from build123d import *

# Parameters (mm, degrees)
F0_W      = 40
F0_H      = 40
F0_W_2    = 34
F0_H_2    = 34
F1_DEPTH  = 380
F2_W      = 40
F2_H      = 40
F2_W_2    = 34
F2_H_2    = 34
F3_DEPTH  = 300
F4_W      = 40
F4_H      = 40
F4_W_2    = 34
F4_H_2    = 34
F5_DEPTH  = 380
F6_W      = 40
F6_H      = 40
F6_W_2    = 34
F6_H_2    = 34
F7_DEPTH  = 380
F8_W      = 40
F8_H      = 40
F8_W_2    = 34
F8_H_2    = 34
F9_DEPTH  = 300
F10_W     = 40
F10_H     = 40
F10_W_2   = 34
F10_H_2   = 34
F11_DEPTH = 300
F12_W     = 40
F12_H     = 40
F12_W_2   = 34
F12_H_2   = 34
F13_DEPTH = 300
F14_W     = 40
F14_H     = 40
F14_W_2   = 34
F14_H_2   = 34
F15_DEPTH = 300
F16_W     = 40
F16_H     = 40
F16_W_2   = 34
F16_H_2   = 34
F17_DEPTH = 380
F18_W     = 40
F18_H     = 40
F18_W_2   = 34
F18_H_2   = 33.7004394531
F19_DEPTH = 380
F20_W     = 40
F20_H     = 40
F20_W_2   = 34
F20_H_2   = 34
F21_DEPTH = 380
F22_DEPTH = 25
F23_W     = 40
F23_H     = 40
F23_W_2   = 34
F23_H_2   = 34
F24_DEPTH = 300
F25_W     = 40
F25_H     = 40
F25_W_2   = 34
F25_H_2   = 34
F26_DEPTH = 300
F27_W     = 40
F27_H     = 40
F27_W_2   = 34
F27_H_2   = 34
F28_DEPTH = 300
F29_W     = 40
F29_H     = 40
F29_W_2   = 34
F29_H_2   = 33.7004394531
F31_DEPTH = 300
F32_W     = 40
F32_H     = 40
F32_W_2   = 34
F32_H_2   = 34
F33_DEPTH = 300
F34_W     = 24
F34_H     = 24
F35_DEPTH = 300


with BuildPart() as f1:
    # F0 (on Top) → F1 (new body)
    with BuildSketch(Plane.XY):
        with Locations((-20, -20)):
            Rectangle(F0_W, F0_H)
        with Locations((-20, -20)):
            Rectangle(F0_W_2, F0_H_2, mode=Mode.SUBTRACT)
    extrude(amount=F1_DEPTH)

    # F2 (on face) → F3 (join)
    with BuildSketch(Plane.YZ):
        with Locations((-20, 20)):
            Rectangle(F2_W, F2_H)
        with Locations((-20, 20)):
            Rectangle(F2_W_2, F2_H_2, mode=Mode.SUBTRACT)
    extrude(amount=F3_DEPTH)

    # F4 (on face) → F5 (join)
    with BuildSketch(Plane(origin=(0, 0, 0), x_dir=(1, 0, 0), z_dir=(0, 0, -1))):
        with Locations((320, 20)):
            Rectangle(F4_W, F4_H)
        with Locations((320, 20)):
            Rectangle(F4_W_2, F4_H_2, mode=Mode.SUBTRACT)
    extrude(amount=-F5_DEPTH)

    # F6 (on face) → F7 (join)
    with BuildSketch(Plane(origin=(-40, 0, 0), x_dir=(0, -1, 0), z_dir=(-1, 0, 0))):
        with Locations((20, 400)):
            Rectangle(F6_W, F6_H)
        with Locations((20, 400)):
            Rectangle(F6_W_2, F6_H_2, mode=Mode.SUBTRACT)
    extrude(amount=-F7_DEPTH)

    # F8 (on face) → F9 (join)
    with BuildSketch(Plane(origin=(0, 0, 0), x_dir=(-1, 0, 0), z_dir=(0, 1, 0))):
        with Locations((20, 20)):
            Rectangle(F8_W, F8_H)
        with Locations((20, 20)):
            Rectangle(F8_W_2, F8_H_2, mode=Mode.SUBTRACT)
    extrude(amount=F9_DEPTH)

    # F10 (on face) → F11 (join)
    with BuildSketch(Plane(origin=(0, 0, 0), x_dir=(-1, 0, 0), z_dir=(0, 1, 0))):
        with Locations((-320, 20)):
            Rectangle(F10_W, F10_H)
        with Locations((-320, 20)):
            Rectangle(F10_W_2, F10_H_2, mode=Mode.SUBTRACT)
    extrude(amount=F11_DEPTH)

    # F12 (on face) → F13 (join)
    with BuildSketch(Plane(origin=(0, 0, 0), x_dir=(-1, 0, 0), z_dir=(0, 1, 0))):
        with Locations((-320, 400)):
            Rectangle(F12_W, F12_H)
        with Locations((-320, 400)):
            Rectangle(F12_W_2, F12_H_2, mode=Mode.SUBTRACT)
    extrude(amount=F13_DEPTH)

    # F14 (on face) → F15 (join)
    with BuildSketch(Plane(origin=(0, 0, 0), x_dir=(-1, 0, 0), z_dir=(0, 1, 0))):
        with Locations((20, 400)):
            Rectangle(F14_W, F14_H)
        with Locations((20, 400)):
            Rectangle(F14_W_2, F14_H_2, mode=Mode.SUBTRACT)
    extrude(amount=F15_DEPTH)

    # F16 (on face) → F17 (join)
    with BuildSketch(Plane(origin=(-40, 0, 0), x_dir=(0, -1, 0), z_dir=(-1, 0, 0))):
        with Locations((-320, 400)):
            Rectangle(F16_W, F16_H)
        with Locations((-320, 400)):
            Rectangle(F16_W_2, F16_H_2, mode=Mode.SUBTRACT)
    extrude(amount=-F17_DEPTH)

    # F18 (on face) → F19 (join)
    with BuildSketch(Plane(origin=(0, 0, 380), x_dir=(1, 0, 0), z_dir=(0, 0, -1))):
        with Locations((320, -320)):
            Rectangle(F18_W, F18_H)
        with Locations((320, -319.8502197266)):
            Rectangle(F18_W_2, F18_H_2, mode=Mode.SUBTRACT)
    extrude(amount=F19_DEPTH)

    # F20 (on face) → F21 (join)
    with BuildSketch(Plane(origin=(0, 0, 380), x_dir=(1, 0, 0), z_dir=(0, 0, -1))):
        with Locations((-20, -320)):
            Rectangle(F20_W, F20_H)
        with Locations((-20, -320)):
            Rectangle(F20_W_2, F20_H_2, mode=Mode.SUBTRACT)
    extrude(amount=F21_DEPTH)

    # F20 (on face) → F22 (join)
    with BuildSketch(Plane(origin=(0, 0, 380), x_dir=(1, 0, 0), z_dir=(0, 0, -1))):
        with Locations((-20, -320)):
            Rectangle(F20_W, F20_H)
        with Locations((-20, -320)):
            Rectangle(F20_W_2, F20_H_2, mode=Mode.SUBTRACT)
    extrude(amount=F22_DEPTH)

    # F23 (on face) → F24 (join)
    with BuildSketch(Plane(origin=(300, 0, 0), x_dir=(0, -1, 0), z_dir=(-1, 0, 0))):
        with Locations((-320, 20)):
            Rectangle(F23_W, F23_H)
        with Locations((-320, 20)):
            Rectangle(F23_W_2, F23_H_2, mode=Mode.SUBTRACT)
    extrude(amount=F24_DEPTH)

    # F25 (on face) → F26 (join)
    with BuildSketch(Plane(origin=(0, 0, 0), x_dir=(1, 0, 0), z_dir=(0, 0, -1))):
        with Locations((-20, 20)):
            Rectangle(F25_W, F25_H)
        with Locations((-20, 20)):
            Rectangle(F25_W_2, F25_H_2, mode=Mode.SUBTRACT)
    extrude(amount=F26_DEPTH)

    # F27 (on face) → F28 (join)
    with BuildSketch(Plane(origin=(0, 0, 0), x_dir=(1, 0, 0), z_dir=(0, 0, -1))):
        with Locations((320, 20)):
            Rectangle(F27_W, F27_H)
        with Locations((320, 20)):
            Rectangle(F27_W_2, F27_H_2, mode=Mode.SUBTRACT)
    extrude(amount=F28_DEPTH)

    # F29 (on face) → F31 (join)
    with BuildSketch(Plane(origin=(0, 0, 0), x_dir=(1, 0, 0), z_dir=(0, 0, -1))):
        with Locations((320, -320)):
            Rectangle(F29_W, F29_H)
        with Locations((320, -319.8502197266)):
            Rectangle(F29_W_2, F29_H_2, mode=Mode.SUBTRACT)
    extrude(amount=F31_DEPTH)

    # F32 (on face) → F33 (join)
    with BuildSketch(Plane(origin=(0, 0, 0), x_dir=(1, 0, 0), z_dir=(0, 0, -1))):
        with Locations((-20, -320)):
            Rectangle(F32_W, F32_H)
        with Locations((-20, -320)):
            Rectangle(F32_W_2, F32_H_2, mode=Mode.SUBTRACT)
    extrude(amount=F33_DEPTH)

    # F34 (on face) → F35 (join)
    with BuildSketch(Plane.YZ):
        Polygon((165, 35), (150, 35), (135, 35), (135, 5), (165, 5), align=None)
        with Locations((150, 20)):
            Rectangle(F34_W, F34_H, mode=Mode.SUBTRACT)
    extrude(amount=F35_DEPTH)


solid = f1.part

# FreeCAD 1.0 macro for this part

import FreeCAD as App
import Part
import Sketcher
from FreeCAD import Vector

doc = App.newDocument("Part")
body = doc.addObject("PartDesign::Body", "Body")

sketch1 = doc.addObject("Sketcher::SketchObject", "Sketch")
body.addObject(sketch1)
sketch1.AttachmentSupport = (doc.XY_Plane, [""])
sketch1.MapMode = "FlatFace"
sketch1.addGeometry(Part.LineSegment(Vector(-40, 0, 0), Vector(-40, -40, 0)), False)
sketch1.addGeometry(Part.LineSegment(Vector(-40, -40, 0), Vector(0, -40, 0)), False)
sketch1.addGeometry(Part.LineSegment(Vector(0, -40, 0), Vector(0, 0, 0)), False)
sketch1.addGeometry(Part.LineSegment(Vector(0, 0, 0), Vector(-40, 0, 0)), False)
sketch1.addGeometry(Part.LineSegment(Vector(-3, -37, 0), Vector(-37, -37, 0)), False)
sketch1.addGeometry(Part.LineSegment(Vector(-37, -37, 0), Vector(-37, -3, 0)), False)
sketch1.addGeometry(Part.LineSegment(Vector(-37, -3, 0), Vector(-3, -3, 0)), False)
sketch1.addGeometry(Part.LineSegment(Vector(-3, -3, 0), Vector(-3, -37, 0)), False)
sketch1.addConstraint(Sketcher.Constraint("Coincident", 0, 2, 1, 1))
sketch1.addConstraint(Sketcher.Constraint("Coincident", 1, 2, 2, 1))
sketch1.addConstraint(Sketcher.Constraint("Coincident", 2, 2, 3, 1))
sketch1.addConstraint(Sketcher.Constraint("Coincident", 3, 2, 0, 1))
sketch1.addConstraint(Sketcher.Constraint("Coincident", 4, 2, 5, 1))
sketch1.addConstraint(Sketcher.Constraint("Coincident", 5, 2, 6, 1))
sketch1.addConstraint(Sketcher.Constraint("Coincident", 6, 2, 7, 1))
sketch1.addConstraint(Sketcher.Constraint("Coincident", 7, 2, 4, 1))
sketch1.addConstraint(Sketcher.Constraint("Vertical", 0))
sketch1.addConstraint(Sketcher.Constraint("Horizontal", 1))
sketch1.addConstraint(Sketcher.Constraint("Vertical", 2))
sketch1.addConstraint(Sketcher.Constraint("Horizontal", 3))
sketch1.addConstraint(Sketcher.Constraint("Horizontal", 4))
sketch1.addConstraint(Sketcher.Constraint("Vertical", 5))
sketch1.addConstraint(Sketcher.Constraint("Horizontal", 6))
sketch1.addConstraint(Sketcher.Constraint("Vertical", 7))
sketch1.addConstraint(Sketcher.Constraint("Coincident", 2, 2, -1, 1))
sketch1.addConstraint(Sketcher.Constraint("Equal", 3, 0))
sketch1.addConstraint(Sketcher.Constraint("Equal", 6, 5))
sketch1.addConstraint(Sketcher.Constraint("DistanceX", 1, 1, 1, 2, 40.0))
sketch1.addConstraint(Sketcher.Constraint("DistanceX", 4, 2, 4, 1, 34.0))
sketch1.addConstraint(Sketcher.Constraint("DistanceX", 4, 2, -1, 1, 37.0))
sketch1.addConstraint(Sketcher.Constraint("DistanceY", 4, 2, -1, 1, 37.0))
pad1 = doc.addObject("PartDesign::Pad", "Pad")
body.addObject(pad1)
pad1.Profile = sketch1
pad1.Length = 380

sketch2 = doc.addObject("Sketcher::SketchObject", "Sketch001")
body.addObject(sketch2)
sketch2.AttachmentSupport = (doc.YZ_Plane, [""])
sketch2.MapMode = "FlatFace"
sketch2.addGeometry(Part.LineSegment(Vector(-40, 40, 0), Vector(-40, 0, 0)), False)
sketch2.addGeometry(Part.LineSegment(Vector(-40, 0, 0), Vector(0, 0, 0)), False)
sketch2.addGeometry(Part.LineSegment(Vector(0, 0, 0), Vector(0, 40, 0)), False)
sketch2.addGeometry(Part.LineSegment(Vector(0, 40, 0), Vector(-40, 40, 0)), False)
sketch2.addGeometry(Part.LineSegment(Vector(-3, 3, 0), Vector(-37, 3, 0)), False)
sketch2.addGeometry(Part.LineSegment(Vector(-37, 3, 0), Vector(-37, 37, 0)), False)
sketch2.addGeometry(Part.LineSegment(Vector(-37, 37, 0), Vector(-3, 37, 0)), False)
sketch2.addGeometry(Part.LineSegment(Vector(-3, 37, 0), Vector(-3, 3, 0)), False)
sketch2.addConstraint(Sketcher.Constraint("Coincident", 0, 2, 1, 1))
sketch2.addConstraint(Sketcher.Constraint("Coincident", 1, 2, 2, 1))
sketch2.addConstraint(Sketcher.Constraint("Coincident", 2, 2, 3, 1))
sketch2.addConstraint(Sketcher.Constraint("Coincident", 3, 2, 0, 1))
sketch2.addConstraint(Sketcher.Constraint("Coincident", 4, 2, 5, 1))
sketch2.addConstraint(Sketcher.Constraint("Coincident", 5, 2, 6, 1))
sketch2.addConstraint(Sketcher.Constraint("Coincident", 6, 2, 7, 1))
sketch2.addConstraint(Sketcher.Constraint("Coincident", 7, 2, 4, 1))
sketch2.addConstraint(Sketcher.Constraint("Vertical", 0))
sketch2.addConstraint(Sketcher.Constraint("Horizontal", 1))
sketch2.addConstraint(Sketcher.Constraint("Vertical", 2))
sketch2.addConstraint(Sketcher.Constraint("Horizontal", 3))
sketch2.addConstraint(Sketcher.Constraint("Horizontal", 4))
sketch2.addConstraint(Sketcher.Constraint("Vertical", 5))
sketch2.addConstraint(Sketcher.Constraint("Horizontal", 6))
sketch2.addConstraint(Sketcher.Constraint("Vertical", 7))
sketch2.addConstraint(Sketcher.Constraint("Coincident", 1, 2, -1, 1))
sketch2.addConstraint(Sketcher.Constraint("Equal", 3, 0))
sketch2.addConstraint(Sketcher.Constraint("Equal", 6, 5))
sketch2.addConstraint(Sketcher.Constraint("DistanceX", 1, 1, 1, 2, 40.0))
sketch2.addConstraint(Sketcher.Constraint("DistanceX", 4, 2, 4, 1, 34.0))
sketch2.addConstraint(Sketcher.Constraint("DistanceX", 4, 2, -1, 1, 37.0))
sketch2.addConstraint(Sketcher.Constraint("DistanceY", -1, 1, 4, 2, 3.0))
pad2 = doc.addObject("PartDesign::Pad", "Pad001")
body.addObject(pad2)
pad2.Profile = sketch2
pad2.Length = 300

sketch3 = doc.addObject("Sketcher::SketchObject", "Sketch002")
body.addObject(sketch3)
sketch3.AttachmentSupport = (doc.XY_Plane, [""])
sketch3.MapMode = "FlatFace"
sketch3.addGeometry(Part.LineSegment(Vector(300, -40, 0), Vector(300, 0, 0)), False)
sketch3.addGeometry(Part.LineSegment(Vector(300, 0, 0), Vector(340, 0, 0)), False)
sketch3.addGeometry(Part.LineSegment(Vector(340, 0, 0), Vector(340, -40, 0)), False)
sketch3.addGeometry(Part.LineSegment(Vector(340, -40, 0), Vector(300, -40, 0)), False)
sketch3.addGeometry(Part.LineSegment(Vector(337, -3, 0), Vector(303, -3, 0)), False)
sketch3.addGeometry(Part.LineSegment(Vector(303, -3, 0), Vector(303, -37, 0)), False)
sketch3.addGeometry(Part.LineSegment(Vector(303, -37, 0), Vector(337, -37, 0)), False)
sketch3.addGeometry(Part.LineSegment(Vector(337, -37, 0), Vector(337, -3, 0)), False)
sketch3.addConstraint(Sketcher.Constraint("Coincident", 0, 2, 1, 1))
sketch3.addConstraint(Sketcher.Constraint("Coincident", 1, 2, 2, 1))
sketch3.addConstraint(Sketcher.Constraint("Coincident", 2, 2, 3, 1))
sketch3.addConstraint(Sketcher.Constraint("Coincident", 3, 2, 0, 1))
sketch3.addConstraint(Sketcher.Constraint("Coincident", 4, 2, 5, 1))
sketch3.addConstraint(Sketcher.Constraint("Coincident", 5, 2, 6, 1))
sketch3.addConstraint(Sketcher.Constraint("Coincident", 6, 2, 7, 1))
sketch3.addConstraint(Sketcher.Constraint("Coincident", 7, 2, 4, 1))
sketch3.addConstraint(Sketcher.Constraint("Vertical", 0))
sketch3.addConstraint(Sketcher.Constraint("Horizontal", 1))
sketch3.addConstraint(Sketcher.Constraint("Vertical", 2))
sketch3.addConstraint(Sketcher.Constraint("Horizontal", 3))
sketch3.addConstraint(Sketcher.Constraint("Horizontal", 4))
sketch3.addConstraint(Sketcher.Constraint("Vertical", 5))
sketch3.addConstraint(Sketcher.Constraint("Horizontal", 6))
sketch3.addConstraint(Sketcher.Constraint("Vertical", 7))
sketch3.addConstraint(Sketcher.Constraint("PointOnObject", 0, 2, -1))
sketch3.addConstraint(Sketcher.Constraint("Equal", 3, 0))
sketch3.addConstraint(Sketcher.Constraint("Equal", 6, 5))
sketch3.addConstraint(Sketcher.Constraint("DistanceX", 1, 1, 1, 2, 40.0))
sketch3.addConstraint(Sketcher.Constraint("DistanceX", 4, 2, 4, 1, 34.0))
sketch3.addConstraint(Sketcher.Constraint("DistanceX", -1, 1, 0, 2, 300.0))
sketch3.addConstraint(Sketcher.Constraint("DistanceX", -1, 1, 4, 2, 303.0))
sketch3.addConstraint(Sketcher.Constraint("DistanceY", 4, 2, -1, 1, 3.0))
pad3 = doc.addObject("PartDesign::Pad", "Pad002")
body.addObject(pad3)
pad3.Profile = sketch3
pad3.Length = 380

sketch4 = doc.addObject("Sketcher::SketchObject", "Sketch003")
body.addObject(sketch4)
sketch4.AttachmentSupport = (doc.YZ_Plane, [""])
sketch4.MapMode = "FlatFace"
sketch4.AttachmentOffset = App.Placement(Vector(0, 0, -40), App.Rotation())
sketch4.addGeometry(Part.LineSegment(Vector(0, 420, 0), Vector(0, 380, 0)), False)
sketch4.addGeometry(Part.LineSegment(Vector(0, 380, 0), Vector(-40, 380, 0)), False)
sketch4.addGeometry(Part.LineSegment(Vector(-40, 380, 0), Vector(-40, 420, 0)), False)
sketch4.addGeometry(Part.LineSegment(Vector(-40, 420, 0), Vector(0, 420, 0)), False)
sketch4.addGeometry(Part.LineSegment(Vector(-37, 383, 0), Vector(-3, 383, 0)), False)
sketch4.addGeometry(Part.LineSegment(Vector(-3, 383, 0), Vector(-3, 417, 0)), False)
sketch4.addGeometry(Part.LineSegment(Vector(-3, 417, 0), Vector(-37, 417, 0)), False)
sketch4.addGeometry(Part.LineSegment(Vector(-37, 417, 0), Vector(-37, 383, 0)), False)
sketch4.addConstraint(Sketcher.Constraint("Coincident", 0, 2, 1, 1))
sketch4.addConstraint(Sketcher.Constraint("Coincident", 1, 2, 2, 1))
sketch4.addConstraint(Sketcher.Constraint("Coincident", 2, 2, 3, 1))
sketch4.addConstraint(Sketcher.Constraint("Coincident", 3, 2, 0, 1))
sketch4.addConstraint(Sketcher.Constraint("Coincident", 4, 2, 5, 1))
sketch4.addConstraint(Sketcher.Constraint("Coincident", 5, 2, 6, 1))
sketch4.addConstraint(Sketcher.Constraint("Coincident", 6, 2, 7, 1))
sketch4.addConstraint(Sketcher.Constraint("Coincident", 7, 2, 4, 1))
sketch4.addConstraint(Sketcher.Constraint("Vertical", 0))
sketch4.addConstraint(Sketcher.Constraint("Horizontal", 1))
sketch4.addConstraint(Sketcher.Constraint("Vertical", 2))
sketch4.addConstraint(Sketcher.Constraint("Horizontal", 3))
sketch4.addConstraint(Sketcher.Constraint("Horizontal", 4))
sketch4.addConstraint(Sketcher.Constraint("Vertical", 5))
sketch4.addConstraint(Sketcher.Constraint("Horizontal", 6))
sketch4.addConstraint(Sketcher.Constraint("Vertical", 7))
sketch4.addConstraint(Sketcher.Constraint("PointOnObject", 0, 2, -2))
sketch4.addConstraint(Sketcher.Constraint("Equal", 3, 0))
sketch4.addConstraint(Sketcher.Constraint("Equal", 6, 5))
sketch4.addConstraint(Sketcher.Constraint("DistanceX", 1, 2, 1, 1, 40.0))
sketch4.addConstraint(Sketcher.Constraint("DistanceX", 4, 1, 4, 2, 34.0))
sketch4.addConstraint(Sketcher.Constraint("DistanceY", -1, 1, 0, 2, 380.0))
sketch4.addConstraint(Sketcher.Constraint("DistanceX", 4, 2, -1, 1, 3.0))
sketch4.addConstraint(Sketcher.Constraint("DistanceY", -1, 1, 4, 2, 383.0))
pad4 = doc.addObject("PartDesign::Pad", "Pad003")
body.addObject(pad4)
pad4.Profile = sketch4
pad4.Length = 380

sketch5 = doc.addObject("Sketcher::SketchObject", "Sketch004")
body.addObject(sketch5)
sketch5.AttachmentSupport = (doc.XZ_Plane, [""])
sketch5.MapMode = "FlatFace"
sketch5.addGeometry(Part.LineSegment(Vector(0, 40, 0), Vector(0, 0, 0)), False)
sketch5.addGeometry(Part.LineSegment(Vector(0, 0, 0), Vector(-40, 0, 0)), False)
sketch5.addGeometry(Part.LineSegment(Vector(-40, 0, 0), Vector(-40, 40, 0)), False)
sketch5.addGeometry(Part.LineSegment(Vector(-40, 40, 0), Vector(0, 40, 0)), False)
sketch5.addGeometry(Part.LineSegment(Vector(-37, 3, 0), Vector(-3, 3, 0)), False)
sketch5.addGeometry(Part.LineSegment(Vector(-3, 3, 0), Vector(-3, 37, 0)), False)
sketch5.addGeometry(Part.LineSegment(Vector(-3, 37, 0), Vector(-37, 37, 0)), False)
sketch5.addGeometry(Part.LineSegment(Vector(-37, 37, 0), Vector(-37, 3, 0)), False)
sketch5.addConstraint(Sketcher.Constraint("Coincident", 0, 2, 1, 1))
sketch5.addConstraint(Sketcher.Constraint("Coincident", 1, 2, 2, 1))
sketch5.addConstraint(Sketcher.Constraint("Coincident", 2, 2, 3, 1))
sketch5.addConstraint(Sketcher.Constraint("Coincident", 3, 2, 0, 1))
sketch5.addConstraint(Sketcher.Constraint("Coincident", 4, 2, 5, 1))
sketch5.addConstraint(Sketcher.Constraint("Coincident", 5, 2, 6, 1))
sketch5.addConstraint(Sketcher.Constraint("Coincident", 6, 2, 7, 1))
sketch5.addConstraint(Sketcher.Constraint("Coincident", 7, 2, 4, 1))
sketch5.addConstraint(Sketcher.Constraint("Vertical", 0))
sketch5.addConstraint(Sketcher.Constraint("Horizontal", 1))
sketch5.addConstraint(Sketcher.Constraint("Vertical", 2))
sketch5.addConstraint(Sketcher.Constraint("Horizontal", 3))
sketch5.addConstraint(Sketcher.Constraint("Horizontal", 4))
sketch5.addConstraint(Sketcher.Constraint("Vertical", 5))
sketch5.addConstraint(Sketcher.Constraint("Horizontal", 6))
sketch5.addConstraint(Sketcher.Constraint("Vertical", 7))
sketch5.addConstraint(Sketcher.Constraint("Coincident", 0, 2, -1, 1))
sketch5.addConstraint(Sketcher.Constraint("Equal", 3, 0))
sketch5.addConstraint(Sketcher.Constraint("Equal", 6, 5))
sketch5.addConstraint(Sketcher.Constraint("DistanceX", 1, 2, 1, 1, 40.0))
sketch5.addConstraint(Sketcher.Constraint("DistanceX", 4, 1, 4, 2, 34.0))
sketch5.addConstraint(Sketcher.Constraint("DistanceX", 4, 2, -1, 1, 3.0))
sketch5.addConstraint(Sketcher.Constraint("DistanceY", -1, 1, 4, 2, 3.0))
pad5 = doc.addObject("PartDesign::Pad", "Pad004")
body.addObject(pad5)
pad5.Profile = sketch5
pad5.Length = 300
pad5.Reversed = True

sketch6 = doc.addObject("Sketcher::SketchObject", "Sketch005")
body.addObject(sketch6)
sketch6.AttachmentSupport = (doc.XZ_Plane, [""])
sketch6.MapMode = "FlatFace"
sketch6.addGeometry(Part.LineSegment(Vector(340, 40, 0), Vector(340, 0, 0)), False)
sketch6.addGeometry(Part.LineSegment(Vector(340, 0, 0), Vector(300, 0, 0)), False)
sketch6.addGeometry(Part.LineSegment(Vector(300, 0, 0), Vector(300, 40, 0)), False)
sketch6.addGeometry(Part.LineSegment(Vector(300, 40, 0), Vector(340, 40, 0)), False)
sketch6.addGeometry(Part.LineSegment(Vector(303, 3, 0), Vector(337, 3, 0)), False)
sketch6.addGeometry(Part.LineSegment(Vector(337, 3, 0), Vector(337, 37, 0)), False)
sketch6.addGeometry(Part.LineSegment(Vector(337, 37, 0), Vector(303, 37, 0)), False)
sketch6.addGeometry(Part.LineSegment(Vector(303, 37, 0), Vector(303, 3, 0)), False)
sketch6.addConstraint(Sketcher.Constraint("Coincident", 0, 2, 1, 1))
sketch6.addConstraint(Sketcher.Constraint("Coincident", 1, 2, 2, 1))
sketch6.addConstraint(Sketcher.Constraint("Coincident", 2, 2, 3, 1))
sketch6.addConstraint(Sketcher.Constraint("Coincident", 3, 2, 0, 1))
sketch6.addConstraint(Sketcher.Constraint("Coincident", 4, 2, 5, 1))
sketch6.addConstraint(Sketcher.Constraint("Coincident", 5, 2, 6, 1))
sketch6.addConstraint(Sketcher.Constraint("Coincident", 6, 2, 7, 1))
sketch6.addConstraint(Sketcher.Constraint("Coincident", 7, 2, 4, 1))
sketch6.addConstraint(Sketcher.Constraint("Vertical", 0))
sketch6.addConstraint(Sketcher.Constraint("Horizontal", 1))
sketch6.addConstraint(Sketcher.Constraint("Vertical", 2))
sketch6.addConstraint(Sketcher.Constraint("Horizontal", 3))
sketch6.addConstraint(Sketcher.Constraint("Horizontal", 4))
sketch6.addConstraint(Sketcher.Constraint("Vertical", 5))
sketch6.addConstraint(Sketcher.Constraint("Horizontal", 6))
sketch6.addConstraint(Sketcher.Constraint("Vertical", 7))
sketch6.addConstraint(Sketcher.Constraint("PointOnObject", 0, 2, -1))
sketch6.addConstraint(Sketcher.Constraint("Equal", 3, 0))
sketch6.addConstraint(Sketcher.Constraint("Equal", 6, 5))
sketch6.addConstraint(Sketcher.Constraint("DistanceX", 1, 2, 1, 1, 40.0))
sketch6.addConstraint(Sketcher.Constraint("DistanceX", 4, 1, 4, 2, 34.0))
sketch6.addConstraint(Sketcher.Constraint("DistanceX", -1, 1, 0, 2, 340.0))
sketch6.addConstraint(Sketcher.Constraint("DistanceX", -1, 1, 4, 2, 337.0))
sketch6.addConstraint(Sketcher.Constraint("DistanceY", -1, 1, 4, 2, 3.0))
pad6 = doc.addObject("PartDesign::Pad", "Pad005")
body.addObject(pad6)
pad6.Profile = sketch6
pad6.Length = 300
pad6.Reversed = True

sketch7 = doc.addObject("Sketcher::SketchObject", "Sketch006")
body.addObject(sketch7)
sketch7.AttachmentSupport = (doc.XZ_Plane, [""])
sketch7.MapMode = "FlatFace"
sketch7.addGeometry(Part.LineSegment(Vector(340, 420, 0), Vector(340, 380, 0)), False)
sketch7.addGeometry(Part.LineSegment(Vector(340, 380, 0), Vector(300, 380, 0)), False)
sketch7.addGeometry(Part.LineSegment(Vector(300, 380, 0), Vector(300, 420, 0)), False)
sketch7.addGeometry(Part.LineSegment(Vector(300, 420, 0), Vector(340, 420, 0)), False)
sketch7.addGeometry(Part.LineSegment(Vector(303, 383, 0), Vector(337, 383, 0)), False)
sketch7.addGeometry(Part.LineSegment(Vector(337, 383, 0), Vector(337, 417, 0)), False)
sketch7.addGeometry(Part.LineSegment(Vector(337, 417, 0), Vector(303, 417, 0)), False)
sketch7.addGeometry(Part.LineSegment(Vector(303, 417, 0), Vector(303, 383, 0)), False)
sketch7.addConstraint(Sketcher.Constraint("Coincident", 0, 2, 1, 1))
sketch7.addConstraint(Sketcher.Constraint("Coincident", 1, 2, 2, 1))
sketch7.addConstraint(Sketcher.Constraint("Coincident", 2, 2, 3, 1))
sketch7.addConstraint(Sketcher.Constraint("Coincident", 3, 2, 0, 1))
sketch7.addConstraint(Sketcher.Constraint("Coincident", 4, 2, 5, 1))
sketch7.addConstraint(Sketcher.Constraint("Coincident", 5, 2, 6, 1))
sketch7.addConstraint(Sketcher.Constraint("Coincident", 6, 2, 7, 1))
sketch7.addConstraint(Sketcher.Constraint("Coincident", 7, 2, 4, 1))
sketch7.addConstraint(Sketcher.Constraint("Vertical", 0))
sketch7.addConstraint(Sketcher.Constraint("Horizontal", 1))
sketch7.addConstraint(Sketcher.Constraint("Vertical", 2))
sketch7.addConstraint(Sketcher.Constraint("Horizontal", 3))
sketch7.addConstraint(Sketcher.Constraint("Horizontal", 4))
sketch7.addConstraint(Sketcher.Constraint("Vertical", 5))
sketch7.addConstraint(Sketcher.Constraint("Horizontal", 6))
sketch7.addConstraint(Sketcher.Constraint("Vertical", 7))
sketch7.addConstraint(Sketcher.Constraint("Equal", 3, 0))
sketch7.addConstraint(Sketcher.Constraint("Equal", 6, 5))
sketch7.addConstraint(Sketcher.Constraint("DistanceX", 1, 2, 1, 1, 40.0))
sketch7.addConstraint(Sketcher.Constraint("DistanceX", 4, 1, 4, 2, 34.0))
sketch7.addConstraint(Sketcher.Constraint("DistanceX", -1, 1, 0, 2, 340.0))
sketch7.addConstraint(Sketcher.Constraint("DistanceY", -1, 1, 0, 2, 380.0))
sketch7.addConstraint(Sketcher.Constraint("DistanceX", -1, 1, 4, 2, 337.0))
sketch7.addConstraint(Sketcher.Constraint("DistanceY", -1, 1, 4, 2, 383.0))
pad7 = doc.addObject("PartDesign::Pad", "Pad006")
body.addObject(pad7)
pad7.Profile = sketch7
pad7.Length = 300
pad7.Reversed = True

sketch8 = doc.addObject("Sketcher::SketchObject", "Sketch007")
body.addObject(sketch8)
sketch8.AttachmentSupport = (doc.XZ_Plane, [""])
sketch8.MapMode = "FlatFace"
sketch8.addGeometry(Part.LineSegment(Vector(0, 420, 0), Vector(0, 380, 0)), False)
sketch8.addGeometry(Part.LineSegment(Vector(0, 380, 0), Vector(-40, 380, 0)), False)
sketch8.addGeometry(Part.LineSegment(Vector(-40, 380, 0), Vector(-40, 420, 0)), False)
sketch8.addGeometry(Part.LineSegment(Vector(-40, 420, 0), Vector(0, 420, 0)), False)
sketch8.addGeometry(Part.LineSegment(Vector(-37, 383, 0), Vector(-3, 383, 0)), False)
sketch8.addGeometry(Part.LineSegment(Vector(-3, 383, 0), Vector(-3, 417, 0)), False)
sketch8.addGeometry(Part.LineSegment(Vector(-3, 417, 0), Vector(-37, 417, 0)), False)
sketch8.addGeometry(Part.LineSegment(Vector(-37, 417, 0), Vector(-37, 383, 0)), False)
sketch8.addConstraint(Sketcher.Constraint("Coincident", 0, 2, 1, 1))
sketch8.addConstraint(Sketcher.Constraint("Coincident", 1, 2, 2, 1))
sketch8.addConstraint(Sketcher.Constraint("Coincident", 2, 2, 3, 1))
sketch8.addConstraint(Sketcher.Constraint("Coincident", 3, 2, 0, 1))
sketch8.addConstraint(Sketcher.Constraint("Coincident", 4, 2, 5, 1))
sketch8.addConstraint(Sketcher.Constraint("Coincident", 5, 2, 6, 1))
sketch8.addConstraint(Sketcher.Constraint("Coincident", 6, 2, 7, 1))
sketch8.addConstraint(Sketcher.Constraint("Coincident", 7, 2, 4, 1))
sketch8.addConstraint(Sketcher.Constraint("Vertical", 0))
sketch8.addConstraint(Sketcher.Constraint("Horizontal", 1))
sketch8.addConstraint(Sketcher.Constraint("Vertical", 2))
sketch8.addConstraint(Sketcher.Constraint("Horizontal", 3))
sketch8.addConstraint(Sketcher.Constraint("Horizontal", 4))
sketch8.addConstraint(Sketcher.Constraint("Vertical", 5))
sketch8.addConstraint(Sketcher.Constraint("Horizontal", 6))
sketch8.addConstraint(Sketcher.Constraint("Vertical", 7))
sketch8.addConstraint(Sketcher.Constraint("PointOnObject", 0, 2, -2))
sketch8.addConstraint(Sketcher.Constraint("Equal", 3, 0))
sketch8.addConstraint(Sketcher.Constraint("Equal", 6, 5))
sketch8.addConstraint(Sketcher.Constraint("DistanceX", 1, 2, 1, 1, 40.0))
sketch8.addConstraint(Sketcher.Constraint("DistanceX", 4, 1, 4, 2, 34.0))
sketch8.addConstraint(Sketcher.Constraint("DistanceY", -1, 1, 0, 2, 380.0))
sketch8.addConstraint(Sketcher.Constraint("DistanceX", 4, 2, -1, 1, 3.0))
sketch8.addConstraint(Sketcher.Constraint("DistanceY", -1, 1, 4, 2, 383.0))
pad8 = doc.addObject("PartDesign::Pad", "Pad007")
body.addObject(pad8)
pad8.Profile = sketch8
pad8.Length = 300
pad8.Reversed = True

sketch9 = doc.addObject("Sketcher::SketchObject", "Sketch008")
body.addObject(sketch9)
sketch9.AttachmentSupport = (doc.YZ_Plane, [""])
sketch9.MapMode = "FlatFace"
sketch9.AttachmentOffset = App.Placement(Vector(0, 0, -40), App.Rotation())
sketch9.addGeometry(Part.LineSegment(Vector(340, 420, 0), Vector(340, 380, 0)), False)
sketch9.addGeometry(Part.LineSegment(Vector(340, 380, 0), Vector(300, 380, 0)), False)
sketch9.addGeometry(Part.LineSegment(Vector(300, 380, 0), Vector(300, 420, 0)), False)
sketch9.addGeometry(Part.LineSegment(Vector(300, 420, 0), Vector(340, 420, 0)), False)
sketch9.addGeometry(Part.LineSegment(Vector(303, 383, 0), Vector(337, 383, 0)), False)
sketch9.addGeometry(Part.LineSegment(Vector(337, 383, 0), Vector(337, 417, 0)), False)
sketch9.addGeometry(Part.LineSegment(Vector(337, 417, 0), Vector(303, 417, 0)), False)
sketch9.addGeometry(Part.LineSegment(Vector(303, 417, 0), Vector(303, 383, 0)), False)
sketch9.addConstraint(Sketcher.Constraint("Coincident", 0, 2, 1, 1))
sketch9.addConstraint(Sketcher.Constraint("Coincident", 1, 2, 2, 1))
sketch9.addConstraint(Sketcher.Constraint("Coincident", 2, 2, 3, 1))
sketch9.addConstraint(Sketcher.Constraint("Coincident", 3, 2, 0, 1))
sketch9.addConstraint(Sketcher.Constraint("Coincident", 4, 2, 5, 1))
sketch9.addConstraint(Sketcher.Constraint("Coincident", 5, 2, 6, 1))
sketch9.addConstraint(Sketcher.Constraint("Coincident", 6, 2, 7, 1))
sketch9.addConstraint(Sketcher.Constraint("Coincident", 7, 2, 4, 1))
sketch9.addConstraint(Sketcher.Constraint("Vertical", 0))
sketch9.addConstraint(Sketcher.Constraint("Horizontal", 1))
sketch9.addConstraint(Sketcher.Constraint("Vertical", 2))
sketch9.addConstraint(Sketcher.Constraint("Horizontal", 3))
sketch9.addConstraint(Sketcher.Constraint("Horizontal", 4))
sketch9.addConstraint(Sketcher.Constraint("Vertical", 5))
sketch9.addConstraint(Sketcher.Constraint("Horizontal", 6))
sketch9.addConstraint(Sketcher.Constraint("Vertical", 7))
sketch9.addConstraint(Sketcher.Constraint("Equal", 3, 0))
sketch9.addConstraint(Sketcher.Constraint("Equal", 6, 5))
sketch9.addConstraint(Sketcher.Constraint("DistanceX", 1, 2, 1, 1, 40.0))
sketch9.addConstraint(Sketcher.Constraint("DistanceX", 4, 1, 4, 2, 34.0))
sketch9.addConstraint(Sketcher.Constraint("DistanceX", -1, 1, 0, 2, 340.0))
sketch9.addConstraint(Sketcher.Constraint("DistanceY", -1, 1, 0, 2, 380.0))
sketch9.addConstraint(Sketcher.Constraint("DistanceX", -1, 1, 4, 2, 337.0))
sketch9.addConstraint(Sketcher.Constraint("DistanceY", -1, 1, 4, 2, 383.0))
pad9 = doc.addObject("PartDesign::Pad", "Pad008")
body.addObject(pad9)
pad9.Profile = sketch9
pad9.Length = 380

sketch10 = doc.addObject("Sketcher::SketchObject", "Sketch009")
body.addObject(sketch10)
sketch10.AttachmentSupport = (doc.XY_Plane, [""])
sketch10.MapMode = "FlatFace"
sketch10.AttachmentOffset = App.Placement(Vector(0, 0, 380), App.Rotation())
sketch10.addGeometry(Part.LineSegment(Vector(300, 300, 0), Vector(300, 340, 0)), False)
sketch10.addGeometry(Part.LineSegment(Vector(300, 340, 0), Vector(340, 340, 0)), False)
sketch10.addGeometry(Part.LineSegment(Vector(340, 340, 0), Vector(340, 300, 0)), False)
sketch10.addGeometry(Part.LineSegment(Vector(340, 300, 0), Vector(300, 300, 0)), False)
sketch10.addGeometry(Part.LineSegment(Vector(337, 337, 0), Vector(303, 337, 0)), False)
sketch10.addGeometry(Part.LineSegment(Vector(303, 337, 0), Vector(303, 303, 0)), False)
sketch10.addGeometry(Part.LineSegment(Vector(303, 303, 0), Vector(337, 303, 0)), False)
sketch10.addGeometry(Part.LineSegment(Vector(337, 303, 0), Vector(337, 337, 0)), False)
sketch10.addConstraint(Sketcher.Constraint("Coincident", 0, 2, 1, 1))
sketch10.addConstraint(Sketcher.Constraint("Coincident", 1, 2, 2, 1))
sketch10.addConstraint(Sketcher.Constraint("Coincident", 2, 2, 3, 1))
sketch10.addConstraint(Sketcher.Constraint("Coincident", 3, 2, 0, 1))
sketch10.addConstraint(Sketcher.Constraint("Coincident", 4, 2, 5, 1))
sketch10.addConstraint(Sketcher.Constraint("Coincident", 5, 2, 6, 1))
sketch10.addConstraint(Sketcher.Constraint("Coincident", 6, 2, 7, 1))
sketch10.addConstraint(Sketcher.Constraint("Coincident", 7, 2, 4, 1))
sketch10.addConstraint(Sketcher.Constraint("Vertical", 0))
sketch10.addConstraint(Sketcher.Constraint("Horizontal", 1))
sketch10.addConstraint(Sketcher.Constraint("Vertical", 2))
sketch10.addConstraint(Sketcher.Constraint("Horizontal", 3))
sketch10.addConstraint(Sketcher.Constraint("Horizontal", 4))
sketch10.addConstraint(Sketcher.Constraint("Vertical", 5))
sketch10.addConstraint(Sketcher.Constraint("Horizontal", 6))
sketch10.addConstraint(Sketcher.Constraint("Vertical", 7))
sketch10.addConstraint(Sketcher.Constraint("Equal", 3, 0))
sketch10.addConstraint(Sketcher.Constraint("DistanceX", 1, 1, 1, 2, 40.0))
sketch10.addConstraint(Sketcher.Constraint("DistanceX", 4, 2, 4, 1, 34.0))
sketch10.addConstraint(Sketcher.Constraint("DistanceX", -1, 1, 0, 2, 300.0))
sketch10.addConstraint(Sketcher.Constraint("DistanceY", -1, 1, 0, 2, 340.0))
sketch10.addConstraint(Sketcher.Constraint("DistanceX", -1, 1, 4, 2, 303.0))
sketch10.addConstraint(Sketcher.Constraint("DistanceY", -1, 1, 5, 2, 303.0))
sketch10.addConstraint(Sketcher.Constraint("DistanceY", 5, 2, 5, 1, 33.700439))
pad10 = doc.addObject("PartDesign::Pad", "Pad009")
body.addObject(pad10)
pad10.Profile = sketch10
pad10.Length = 380
pad10.Reversed = True

sketch11 = doc.addObject("Sketcher::SketchObject", "Sketch010")
body.addObject(sketch11)
sketch11.AttachmentSupport = (doc.XY_Plane, [""])
sketch11.MapMode = "FlatFace"
sketch11.AttachmentOffset = App.Placement(Vector(0, 0, 380), App.Rotation())
sketch11.addGeometry(Part.LineSegment(Vector(-40, 300, 0), Vector(-40, 340, 0)), False)
sketch11.addGeometry(Part.LineSegment(Vector(-40, 340, 0), Vector(0, 340, 0)), False)
sketch11.addGeometry(Part.LineSegment(Vector(0, 340, 0), Vector(0, 300, 0)), False)
sketch11.addGeometry(Part.LineSegment(Vector(0, 300, 0), Vector(-40, 300, 0)), False)
sketch11.addGeometry(Part.LineSegment(Vector(-3, 337, 0), Vector(-37, 337, 0)), False)
sketch11.addGeometry(Part.LineSegment(Vector(-37, 337, 0), Vector(-37, 303, 0)), False)
sketch11.addGeometry(Part.LineSegment(Vector(-37, 303, 0), Vector(-3, 303, 0)), False)
sketch11.addGeometry(Part.LineSegment(Vector(-3, 303, 0), Vector(-3, 337, 0)), False)
sketch11.addConstraint(Sketcher.Constraint("Coincident", 0, 2, 1, 1))
sketch11.addConstraint(Sketcher.Constraint("Coincident", 1, 2, 2, 1))
sketch11.addConstraint(Sketcher.Constraint("Coincident", 2, 2, 3, 1))
sketch11.addConstraint(Sketcher.Constraint("Coincident", 3, 2, 0, 1))
sketch11.addConstraint(Sketcher.Constraint("Coincident", 4, 2, 5, 1))
sketch11.addConstraint(Sketcher.Constraint("Coincident", 5, 2, 6, 1))
sketch11.addConstraint(Sketcher.Constraint("Coincident", 6, 2, 7, 1))
sketch11.addConstraint(Sketcher.Constraint("Coincident", 7, 2, 4, 1))
sketch11.addConstraint(Sketcher.Constraint("Vertical", 0))
sketch11.addConstraint(Sketcher.Constraint("Horizontal", 1))
sketch11.addConstraint(Sketcher.Constraint("Vertical", 2))
sketch11.addConstraint(Sketcher.Constraint("Horizontal", 3))
sketch11.addConstraint(Sketcher.Constraint("Horizontal", 4))
sketch11.addConstraint(Sketcher.Constraint("Vertical", 5))
sketch11.addConstraint(Sketcher.Constraint("Horizontal", 6))
sketch11.addConstraint(Sketcher.Constraint("Vertical", 7))
sketch11.addConstraint(Sketcher.Constraint("PointOnObject", 1, 2, -2))
sketch11.addConstraint(Sketcher.Constraint("Equal", 3, 0))
sketch11.addConstraint(Sketcher.Constraint("Equal", 6, 5))
sketch11.addConstraint(Sketcher.Constraint("DistanceX", 1, 1, 1, 2, 40.0))
sketch11.addConstraint(Sketcher.Constraint("DistanceX", 4, 2, 4, 1, 34.0))
sketch11.addConstraint(Sketcher.Constraint("DistanceY", -1, 1, 0, 2, 340.0))
sketch11.addConstraint(Sketcher.Constraint("DistanceX", 4, 2, -1, 1, 37.0))
sketch11.addConstraint(Sketcher.Constraint("DistanceY", -1, 1, 4, 2, 337.0))
pad11 = doc.addObject("PartDesign::Pad", "Pad010")
body.addObject(pad11)
pad11.Profile = sketch11
pad11.Length = 380
pad11.Reversed = True

sketch12 = doc.addObject("Sketcher::SketchObject", "Sketch011")
body.addObject(sketch12)
sketch12.AttachmentSupport = (doc.XY_Plane, [""])
sketch12.MapMode = "FlatFace"
sketch12.AttachmentOffset = App.Placement(Vector(0, 0, 380), App.Rotation())
sketch12.addGeometry(Part.LineSegment(Vector(-40, 300, 0), Vector(-40, 340, 0)), False)
sketch12.addGeometry(Part.LineSegment(Vector(-40, 340, 0), Vector(0, 340, 0)), False)
sketch12.addGeometry(Part.LineSegment(Vector(0, 340, 0), Vector(0, 300, 0)), False)
sketch12.addGeometry(Part.LineSegment(Vector(0, 300, 0), Vector(-40, 300, 0)), False)
sketch12.addGeometry(Part.LineSegment(Vector(-3, 337, 0), Vector(-37, 337, 0)), False)
sketch12.addGeometry(Part.LineSegment(Vector(-37, 337, 0), Vector(-37, 303, 0)), False)
sketch12.addGeometry(Part.LineSegment(Vector(-37, 303, 0), Vector(-3, 303, 0)), False)
sketch12.addGeometry(Part.LineSegment(Vector(-3, 303, 0), Vector(-3, 337, 0)), False)
sketch12.addConstraint(Sketcher.Constraint("Coincident", 0, 2, 1, 1))
sketch12.addConstraint(Sketcher.Constraint("Coincident", 1, 2, 2, 1))
sketch12.addConstraint(Sketcher.Constraint("Coincident", 2, 2, 3, 1))
sketch12.addConstraint(Sketcher.Constraint("Coincident", 3, 2, 0, 1))
sketch12.addConstraint(Sketcher.Constraint("Coincident", 4, 2, 5, 1))
sketch12.addConstraint(Sketcher.Constraint("Coincident", 5, 2, 6, 1))
sketch12.addConstraint(Sketcher.Constraint("Coincident", 6, 2, 7, 1))
sketch12.addConstraint(Sketcher.Constraint("Coincident", 7, 2, 4, 1))
sketch12.addConstraint(Sketcher.Constraint("Vertical", 0))
sketch12.addConstraint(Sketcher.Constraint("Horizontal", 1))
sketch12.addConstraint(Sketcher.Constraint("Vertical", 2))
sketch12.addConstraint(Sketcher.Constraint("Horizontal", 3))
sketch12.addConstraint(Sketcher.Constraint("Horizontal", 4))
sketch12.addConstraint(Sketcher.Constraint("Vertical", 5))
sketch12.addConstraint(Sketcher.Constraint("Horizontal", 6))
sketch12.addConstraint(Sketcher.Constraint("Vertical", 7))
sketch12.addConstraint(Sketcher.Constraint("PointOnObject", 1, 2, -2))
sketch12.addConstraint(Sketcher.Constraint("Equal", 3, 0))
sketch12.addConstraint(Sketcher.Constraint("Equal", 6, 5))
sketch12.addConstraint(Sketcher.Constraint("DistanceX", 1, 1, 1, 2, 40.0))
sketch12.addConstraint(Sketcher.Constraint("DistanceX", 4, 2, 4, 1, 34.0))
sketch12.addConstraint(Sketcher.Constraint("DistanceY", -1, 1, 0, 2, 340.0))
sketch12.addConstraint(Sketcher.Constraint("DistanceX", 4, 2, -1, 1, 37.0))
sketch12.addConstraint(Sketcher.Constraint("DistanceY", -1, 1, 4, 2, 337.0))
pad12 = doc.addObject("PartDesign::Pad", "Pad011")
body.addObject(pad12)
pad12.Profile = sketch12
pad12.Length = 25
pad12.Reversed = True

sketch13 = doc.addObject("Sketcher::SketchObject", "Sketch012")
body.addObject(sketch13)
sketch13.AttachmentSupport = (doc.YZ_Plane, [""])
sketch13.MapMode = "FlatFace"
sketch13.AttachmentOffset = App.Placement(Vector(0, 0, 300), App.Rotation())
sketch13.addGeometry(Part.LineSegment(Vector(340, 40, 0), Vector(340, 0, 0)), False)
sketch13.addGeometry(Part.LineSegment(Vector(340, 0, 0), Vector(300, 0, 0)), False)
sketch13.addGeometry(Part.LineSegment(Vector(300, 0, 0), Vector(300, 40, 0)), False)
sketch13.addGeometry(Part.LineSegment(Vector(300, 40, 0), Vector(340, 40, 0)), False)
sketch13.addGeometry(Part.LineSegment(Vector(303, 3, 0), Vector(337, 3, 0)), False)
sketch13.addGeometry(Part.LineSegment(Vector(337, 3, 0), Vector(337, 37, 0)), False)
sketch13.addGeometry(Part.LineSegment(Vector(337, 37, 0), Vector(303, 37, 0)), False)
sketch13.addGeometry(Part.LineSegment(Vector(303, 37, 0), Vector(303, 3, 0)), False)
sketch13.addConstraint(Sketcher.Constraint("Coincident", 0, 2, 1, 1))
sketch13.addConstraint(Sketcher.Constraint("Coincident", 1, 2, 2, 1))
sketch13.addConstraint(Sketcher.Constraint("Coincident", 2, 2, 3, 1))
sketch13.addConstraint(Sketcher.Constraint("Coincident", 3, 2, 0, 1))
sketch13.addConstraint(Sketcher.Constraint("Coincident", 4, 2, 5, 1))
sketch13.addConstraint(Sketcher.Constraint("Coincident", 5, 2, 6, 1))
sketch13.addConstraint(Sketcher.Constraint("Coincident", 6, 2, 7, 1))
sketch13.addConstraint(Sketcher.Constraint("Coincident", 7, 2, 4, 1))
sketch13.addConstraint(Sketcher.Constraint("Vertical", 0))
sketch13.addConstraint(Sketcher.Constraint("Horizontal", 1))
sketch13.addConstraint(Sketcher.Constraint("Vertical", 2))
sketch13.addConstraint(Sketcher.Constraint("Horizontal", 3))
sketch13.addConstraint(Sketcher.Constraint("Horizontal", 4))
sketch13.addConstraint(Sketcher.Constraint("Vertical", 5))
sketch13.addConstraint(Sketcher.Constraint("Horizontal", 6))
sketch13.addConstraint(Sketcher.Constraint("Vertical", 7))
sketch13.addConstraint(Sketcher.Constraint("PointOnObject", 0, 2, -1))
sketch13.addConstraint(Sketcher.Constraint("Equal", 3, 0))
sketch13.addConstraint(Sketcher.Constraint("Equal", 6, 5))
sketch13.addConstraint(Sketcher.Constraint("DistanceX", 1, 2, 1, 1, 40.0))
sketch13.addConstraint(Sketcher.Constraint("DistanceX", 4, 1, 4, 2, 34.0))
sketch13.addConstraint(Sketcher.Constraint("DistanceX", -1, 1, 0, 2, 340.0))
sketch13.addConstraint(Sketcher.Constraint("DistanceX", -1, 1, 4, 2, 337.0))
sketch13.addConstraint(Sketcher.Constraint("DistanceY", -1, 1, 4, 2, 3.0))
pad13 = doc.addObject("PartDesign::Pad", "Pad012")
body.addObject(pad13)
pad13.Profile = sketch13
pad13.Length = 300
pad13.Reversed = True

sketch14 = doc.addObject("Sketcher::SketchObject", "Sketch013")
body.addObject(sketch14)
sketch14.AttachmentSupport = (doc.XY_Plane, [""])
sketch14.MapMode = "FlatFace"
sketch14.addGeometry(Part.LineSegment(Vector(-40, -40, 0), Vector(-40, 0, 0)), False)
sketch14.addGeometry(Part.LineSegment(Vector(-40, 0, 0), Vector(0, 0, 0)), False)
sketch14.addGeometry(Part.LineSegment(Vector(0, 0, 0), Vector(0, -40, 0)), False)
sketch14.addGeometry(Part.LineSegment(Vector(0, -40, 0), Vector(-40, -40, 0)), False)
sketch14.addGeometry(Part.LineSegment(Vector(-3, -3, 0), Vector(-37, -3, 0)), False)
sketch14.addGeometry(Part.LineSegment(Vector(-37, -3, 0), Vector(-37, -37, 0)), False)
sketch14.addGeometry(Part.LineSegment(Vector(-37, -37, 0), Vector(-3, -37, 0)), False)
sketch14.addGeometry(Part.LineSegment(Vector(-3, -37, 0), Vector(-3, -3, 0)), False)
sketch14.addConstraint(Sketcher.Constraint("Coincident", 0, 2, 1, 1))
sketch14.addConstraint(Sketcher.Constraint("Coincident", 1, 2, 2, 1))
sketch14.addConstraint(Sketcher.Constraint("Coincident", 2, 2, 3, 1))
sketch14.addConstraint(Sketcher.Constraint("Coincident", 3, 2, 0, 1))
sketch14.addConstraint(Sketcher.Constraint("Coincident", 4, 2, 5, 1))
sketch14.addConstraint(Sketcher.Constraint("Coincident", 5, 2, 6, 1))
sketch14.addConstraint(Sketcher.Constraint("Coincident", 6, 2, 7, 1))
sketch14.addConstraint(Sketcher.Constraint("Coincident", 7, 2, 4, 1))
sketch14.addConstraint(Sketcher.Constraint("Vertical", 0))
sketch14.addConstraint(Sketcher.Constraint("Horizontal", 1))
sketch14.addConstraint(Sketcher.Constraint("Vertical", 2))
sketch14.addConstraint(Sketcher.Constraint("Horizontal", 3))
sketch14.addConstraint(Sketcher.Constraint("Horizontal", 4))
sketch14.addConstraint(Sketcher.Constraint("Vertical", 5))
sketch14.addConstraint(Sketcher.Constraint("Horizontal", 6))
sketch14.addConstraint(Sketcher.Constraint("Vertical", 7))
sketch14.addConstraint(Sketcher.Constraint("Coincident", 1, 2, -1, 1))
sketch14.addConstraint(Sketcher.Constraint("Equal", 3, 0))
sketch14.addConstraint(Sketcher.Constraint("Equal", 6, 5))
sketch14.addConstraint(Sketcher.Constraint("DistanceX", 1, 1, 1, 2, 40.0))
sketch14.addConstraint(Sketcher.Constraint("DistanceX", 4, 2, 4, 1, 34.0))
sketch14.addConstraint(Sketcher.Constraint("DistanceX", 4, 2, -1, 1, 37.0))
sketch14.addConstraint(Sketcher.Constraint("DistanceY", 4, 2, -1, 1, 3.0))
pad14 = doc.addObject("PartDesign::Pad", "Pad013")
body.addObject(pad14)
pad14.Profile = sketch14
pad14.Length = 300
pad14.Reversed = True

sketch15 = doc.addObject("Sketcher::SketchObject", "Sketch014")
body.addObject(sketch15)
sketch15.AttachmentSupport = (doc.XY_Plane, [""])
sketch15.MapMode = "FlatFace"
sketch15.addGeometry(Part.LineSegment(Vector(300, -40, 0), Vector(300, 0, 0)), False)
sketch15.addGeometry(Part.LineSegment(Vector(300, 0, 0), Vector(340, 0, 0)), False)
sketch15.addGeometry(Part.LineSegment(Vector(340, 0, 0), Vector(340, -40, 0)), False)
sketch15.addGeometry(Part.LineSegment(Vector(340, -40, 0), Vector(300, -40, 0)), False)
sketch15.addGeometry(Part.LineSegment(Vector(337, -3, 0), Vector(303, -3, 0)), False)
sketch15.addGeometry(Part.LineSegment(Vector(303, -3, 0), Vector(303, -37, 0)), False)
sketch15.addGeometry(Part.LineSegment(Vector(303, -37, 0), Vector(337, -37, 0)), False)
sketch15.addGeometry(Part.LineSegment(Vector(337, -37, 0), Vector(337, -3, 0)), False)
sketch15.addConstraint(Sketcher.Constraint("Coincident", 0, 2, 1, 1))
sketch15.addConstraint(Sketcher.Constraint("Coincident", 1, 2, 2, 1))
sketch15.addConstraint(Sketcher.Constraint("Coincident", 2, 2, 3, 1))
sketch15.addConstraint(Sketcher.Constraint("Coincident", 3, 2, 0, 1))
sketch15.addConstraint(Sketcher.Constraint("Coincident", 4, 2, 5, 1))
sketch15.addConstraint(Sketcher.Constraint("Coincident", 5, 2, 6, 1))
sketch15.addConstraint(Sketcher.Constraint("Coincident", 6, 2, 7, 1))
sketch15.addConstraint(Sketcher.Constraint("Coincident", 7, 2, 4, 1))
sketch15.addConstraint(Sketcher.Constraint("Vertical", 0))
sketch15.addConstraint(Sketcher.Constraint("Horizontal", 1))
sketch15.addConstraint(Sketcher.Constraint("Vertical", 2))
sketch15.addConstraint(Sketcher.Constraint("Horizontal", 3))
sketch15.addConstraint(Sketcher.Constraint("Horizontal", 4))
sketch15.addConstraint(Sketcher.Constraint("Vertical", 5))
sketch15.addConstraint(Sketcher.Constraint("Horizontal", 6))
sketch15.addConstraint(Sketcher.Constraint("Vertical", 7))
sketch15.addConstraint(Sketcher.Constraint("PointOnObject", 0, 2, -1))
sketch15.addConstraint(Sketcher.Constraint("Equal", 3, 0))
sketch15.addConstraint(Sketcher.Constraint("Equal", 6, 5))
sketch15.addConstraint(Sketcher.Constraint("DistanceX", 1, 1, 1, 2, 40.0))
sketch15.addConstraint(Sketcher.Constraint("DistanceX", 4, 2, 4, 1, 34.0))
sketch15.addConstraint(Sketcher.Constraint("DistanceX", -1, 1, 0, 2, 300.0))
sketch15.addConstraint(Sketcher.Constraint("DistanceX", -1, 1, 4, 2, 303.0))
sketch15.addConstraint(Sketcher.Constraint("DistanceY", 4, 2, -1, 1, 3.0))
pad15 = doc.addObject("PartDesign::Pad", "Pad014")
body.addObject(pad15)
pad15.Profile = sketch15
pad15.Length = 300
pad15.Reversed = True

sketch16 = doc.addObject("Sketcher::SketchObject", "Sketch015")
body.addObject(sketch16)
sketch16.AttachmentSupport = (doc.XY_Plane, [""])
sketch16.MapMode = "FlatFace"
sketch16.addGeometry(Part.LineSegment(Vector(300, 300, 0), Vector(300, 340, 0)), False)
sketch16.addGeometry(Part.LineSegment(Vector(300, 340, 0), Vector(340, 340, 0)), False)
sketch16.addGeometry(Part.LineSegment(Vector(340, 340, 0), Vector(340, 300, 0)), False)
sketch16.addGeometry(Part.LineSegment(Vector(340, 300, 0), Vector(300, 300, 0)), False)
sketch16.addGeometry(Part.LineSegment(Vector(337, 337, 0), Vector(303, 337, 0)), False)
sketch16.addGeometry(Part.LineSegment(Vector(303, 337, 0), Vector(303, 303, 0)), False)
sketch16.addGeometry(Part.LineSegment(Vector(303, 303, 0), Vector(337, 303, 0)), False)
sketch16.addGeometry(Part.LineSegment(Vector(337, 303, 0), Vector(337, 337, 0)), False)
sketch16.addConstraint(Sketcher.Constraint("Coincident", 0, 2, 1, 1))
sketch16.addConstraint(Sketcher.Constraint("Coincident", 1, 2, 2, 1))
sketch16.addConstraint(Sketcher.Constraint("Coincident", 2, 2, 3, 1))
sketch16.addConstraint(Sketcher.Constraint("Coincident", 3, 2, 0, 1))
sketch16.addConstraint(Sketcher.Constraint("Coincident", 4, 2, 5, 1))
sketch16.addConstraint(Sketcher.Constraint("Coincident", 5, 2, 6, 1))
sketch16.addConstraint(Sketcher.Constraint("Coincident", 6, 2, 7, 1))
sketch16.addConstraint(Sketcher.Constraint("Coincident", 7, 2, 4, 1))
sketch16.addConstraint(Sketcher.Constraint("Vertical", 0))
sketch16.addConstraint(Sketcher.Constraint("Horizontal", 1))
sketch16.addConstraint(Sketcher.Constraint("Vertical", 2))
sketch16.addConstraint(Sketcher.Constraint("Horizontal", 3))
sketch16.addConstraint(Sketcher.Constraint("Horizontal", 4))
sketch16.addConstraint(Sketcher.Constraint("Vertical", 5))
sketch16.addConstraint(Sketcher.Constraint("Horizontal", 6))
sketch16.addConstraint(Sketcher.Constraint("Vertical", 7))
sketch16.addConstraint(Sketcher.Constraint("Equal", 3, 0))
sketch16.addConstraint(Sketcher.Constraint("DistanceX", 1, 1, 1, 2, 40.0))
sketch16.addConstraint(Sketcher.Constraint("DistanceX", 4, 2, 4, 1, 34.0))
sketch16.addConstraint(Sketcher.Constraint("DistanceX", -1, 1, 0, 2, 300.0))
sketch16.addConstraint(Sketcher.Constraint("DistanceY", -1, 1, 0, 2, 340.0))
sketch16.addConstraint(Sketcher.Constraint("DistanceX", -1, 1, 4, 2, 303.0))
sketch16.addConstraint(Sketcher.Constraint("DistanceY", -1, 1, 5, 2, 303.0))
sketch16.addConstraint(Sketcher.Constraint("DistanceY", 5, 2, 5, 1, 33.700439))
pad16 = doc.addObject("PartDesign::Pad", "Pad015")
body.addObject(pad16)
pad16.Profile = sketch16
pad16.Length = 300
pad16.Reversed = True

sketch17 = doc.addObject("Sketcher::SketchObject", "Sketch016")
body.addObject(sketch17)
sketch17.AttachmentSupport = (doc.XY_Plane, [""])
sketch17.MapMode = "FlatFace"
sketch17.addGeometry(Part.LineSegment(Vector(-40, 300, 0), Vector(-40, 340, 0)), False)
sketch17.addGeometry(Part.LineSegment(Vector(-40, 340, 0), Vector(0, 340, 0)), False)
sketch17.addGeometry(Part.LineSegment(Vector(0, 340, 0), Vector(0, 300, 0)), False)
sketch17.addGeometry(Part.LineSegment(Vector(0, 300, 0), Vector(-40, 300, 0)), False)
sketch17.addGeometry(Part.LineSegment(Vector(-3, 337, 0), Vector(-37, 337, 0)), False)
sketch17.addGeometry(Part.LineSegment(Vector(-37, 337, 0), Vector(-37, 303, 0)), False)
sketch17.addGeometry(Part.LineSegment(Vector(-37, 303, 0), Vector(-3, 303, 0)), False)
sketch17.addGeometry(Part.LineSegment(Vector(-3, 303, 0), Vector(-3, 337, 0)), False)
sketch17.addConstraint(Sketcher.Constraint("Coincident", 0, 2, 1, 1))
sketch17.addConstraint(Sketcher.Constraint("Coincident", 1, 2, 2, 1))
sketch17.addConstraint(Sketcher.Constraint("Coincident", 2, 2, 3, 1))
sketch17.addConstraint(Sketcher.Constraint("Coincident", 3, 2, 0, 1))
sketch17.addConstraint(Sketcher.Constraint("Coincident", 4, 2, 5, 1))
sketch17.addConstraint(Sketcher.Constraint("Coincident", 5, 2, 6, 1))
sketch17.addConstraint(Sketcher.Constraint("Coincident", 6, 2, 7, 1))
sketch17.addConstraint(Sketcher.Constraint("Coincident", 7, 2, 4, 1))
sketch17.addConstraint(Sketcher.Constraint("Vertical", 0))
sketch17.addConstraint(Sketcher.Constraint("Horizontal", 1))
sketch17.addConstraint(Sketcher.Constraint("Vertical", 2))
sketch17.addConstraint(Sketcher.Constraint("Horizontal", 3))
sketch17.addConstraint(Sketcher.Constraint("Horizontal", 4))
sketch17.addConstraint(Sketcher.Constraint("Vertical", 5))
sketch17.addConstraint(Sketcher.Constraint("Horizontal", 6))
sketch17.addConstraint(Sketcher.Constraint("Vertical", 7))
sketch17.addConstraint(Sketcher.Constraint("PointOnObject", 1, 2, -2))
sketch17.addConstraint(Sketcher.Constraint("Equal", 3, 0))
sketch17.addConstraint(Sketcher.Constraint("Equal", 6, 5))
sketch17.addConstraint(Sketcher.Constraint("DistanceX", 1, 1, 1, 2, 40.0))
sketch17.addConstraint(Sketcher.Constraint("DistanceX", 4, 2, 4, 1, 34.0))
sketch17.addConstraint(Sketcher.Constraint("DistanceY", -1, 1, 0, 2, 340.0))
sketch17.addConstraint(Sketcher.Constraint("DistanceX", 4, 2, -1, 1, 37.0))
sketch17.addConstraint(Sketcher.Constraint("DistanceY", -1, 1, 4, 2, 337.0))
pad17 = doc.addObject("PartDesign::Pad", "Pad016")
body.addObject(pad17)
pad17.Profile = sketch17
pad17.Length = 300
pad17.Reversed = True

sketch18 = doc.addObject("Sketcher::SketchObject", "Sketch017")
body.addObject(sketch18)
sketch18.AttachmentSupport = (doc.YZ_Plane, [""])
sketch18.MapMode = "FlatFace"
sketch18.addGeometry(Part.LineSegment(Vector(165, 35, 0), Vector(135, 35, 0)), False)
sketch18.addGeometry(Part.LineSegment(Vector(135, 35, 0), Vector(135, 5, 0)), False)
sketch18.addGeometry(Part.LineSegment(Vector(135, 5, 0), Vector(165, 5, 0)), False)
sketch18.addGeometry(Part.LineSegment(Vector(165, 5, 0), Vector(165, 35, 0)), False)
sketch18.addGeometry(Part.LineSegment(Vector(162, 8, 0), Vector(138, 8, 0)), False)
sketch18.addGeometry(Part.LineSegment(Vector(138, 8, 0), Vector(138, 32, 0)), False)
sketch18.addGeometry(Part.LineSegment(Vector(138, 32, 0), Vector(162, 32, 0)), False)
sketch18.addGeometry(Part.LineSegment(Vector(162, 32, 0), Vector(162, 8, 0)), False)
sketch18.addConstraint(Sketcher.Constraint("Coincident", 0, 2, 1, 1))
sketch18.addConstraint(Sketcher.Constraint("Coincident", 1, 2, 2, 1))
sketch18.addConstraint(Sketcher.Constraint("Coincident", 2, 2, 3, 1))
sketch18.addConstraint(Sketcher.Constraint("Coincident", 3, 2, 0, 1))
sketch18.addConstraint(Sketcher.Constraint("Coincident", 4, 2, 5, 1))
sketch18.addConstraint(Sketcher.Constraint("Coincident", 5, 2, 6, 1))
sketch18.addConstraint(Sketcher.Constraint("Coincident", 6, 2, 7, 1))
sketch18.addConstraint(Sketcher.Constraint("Coincident", 7, 2, 4, 1))
sketch18.addConstraint(Sketcher.Constraint("Horizontal", 0))
sketch18.addConstraint(Sketcher.Constraint("Vertical", 1))
sketch18.addConstraint(Sketcher.Constraint("Horizontal", 2))
sketch18.addConstraint(Sketcher.Constraint("Vertical", 3))
sketch18.addConstraint(Sketcher.Constraint("Horizontal", 4))
sketch18.addConstraint(Sketcher.Constraint("Vertical", 5))
sketch18.addConstraint(Sketcher.Constraint("Horizontal", 6))
sketch18.addConstraint(Sketcher.Constraint("Vertical", 7))
sketch18.addConstraint(Sketcher.Constraint("Equal", 2, 1))
sketch18.addConstraint(Sketcher.Constraint("Equal", 6, 5))
sketch18.addConstraint(Sketcher.Constraint("DistanceX", 0, 2, 0, 1, 30.0))
sketch18.addConstraint(Sketcher.Constraint("DistanceX", 4, 2, 4, 1, 24.0))
sketch18.addConstraint(Sketcher.Constraint("DistanceX", -1, 1, 0, 2, 135.0))
sketch18.addConstraint(Sketcher.Constraint("DistanceY", -1, 1, 0, 2, 35.0))
sketch18.addConstraint(Sketcher.Constraint("DistanceX", -1, 1, 4, 2, 138.0))
sketch18.addConstraint(Sketcher.Constraint("DistanceY", -1, 1, 4, 2, 8.0))
pad18 = doc.addObject("PartDesign::Pad", "Pad017")
body.addObject(pad18)
pad18.Profile = sketch18
pad18.Length = 300

doc.recompute()
